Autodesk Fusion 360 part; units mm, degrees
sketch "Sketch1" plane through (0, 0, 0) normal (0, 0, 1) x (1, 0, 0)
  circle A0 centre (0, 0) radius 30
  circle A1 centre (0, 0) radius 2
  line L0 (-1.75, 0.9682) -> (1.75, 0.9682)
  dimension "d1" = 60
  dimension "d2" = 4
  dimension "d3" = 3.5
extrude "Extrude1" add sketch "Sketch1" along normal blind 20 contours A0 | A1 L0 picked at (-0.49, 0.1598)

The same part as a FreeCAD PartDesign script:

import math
import FreeCAD as App
import Part
import Sketcher
from FreeCAD import Vector

doc = App.newDocument("Part")
body = doc.addObject("PartDesign::Body", "Body")

# Sketch on XY plane
sketch1 = body.newObject("Sketcher::SketchObject", "Sketch")
sketch1.AttachmentSupport = (doc.getObject("XY_Plane"), [""])
sketch1.MapMode = "FlatFace"
sketch1.addGeometry([
    Part.Circle(Vector(0, 0, 0), Vector(0, 0, 1), 30),
    Part.ArcOfCircle(Part.Circle(Vector(0, 0, 0), Vector(0, 0, 1), 2), math.radians(29), math.radians(151)),
    Part.LineSegment(Vector(-1.8, 1, 0), Vector(1.8, 1, 0)),
], False)
sketch1.addConstraint([
    Sketcher.Constraint("Coincident", 1, 1, 2, 2),
    Sketcher.Constraint("Coincident", 2, 1, 1, 2),
    Sketcher.Constraint("Horizontal", 2),
    Sketcher.Constraint("Coincident", 0, 3, -1, 1),
    Sketcher.Constraint("Coincident", 1, 3, -1, 1),
    Sketcher.Constraint("Diameter", 0, 60.0),
    Sketcher.Constraint("Radius", 1, 2.0),
    Sketcher.Constraint("DistanceX", 2, 1, 2, 2, 3.5),
])
pad1 = body.newObject("PartDesign::Pad", "Pad")
pad1.Profile = sketch1
pad1.Length = 20

doc.recompute()
